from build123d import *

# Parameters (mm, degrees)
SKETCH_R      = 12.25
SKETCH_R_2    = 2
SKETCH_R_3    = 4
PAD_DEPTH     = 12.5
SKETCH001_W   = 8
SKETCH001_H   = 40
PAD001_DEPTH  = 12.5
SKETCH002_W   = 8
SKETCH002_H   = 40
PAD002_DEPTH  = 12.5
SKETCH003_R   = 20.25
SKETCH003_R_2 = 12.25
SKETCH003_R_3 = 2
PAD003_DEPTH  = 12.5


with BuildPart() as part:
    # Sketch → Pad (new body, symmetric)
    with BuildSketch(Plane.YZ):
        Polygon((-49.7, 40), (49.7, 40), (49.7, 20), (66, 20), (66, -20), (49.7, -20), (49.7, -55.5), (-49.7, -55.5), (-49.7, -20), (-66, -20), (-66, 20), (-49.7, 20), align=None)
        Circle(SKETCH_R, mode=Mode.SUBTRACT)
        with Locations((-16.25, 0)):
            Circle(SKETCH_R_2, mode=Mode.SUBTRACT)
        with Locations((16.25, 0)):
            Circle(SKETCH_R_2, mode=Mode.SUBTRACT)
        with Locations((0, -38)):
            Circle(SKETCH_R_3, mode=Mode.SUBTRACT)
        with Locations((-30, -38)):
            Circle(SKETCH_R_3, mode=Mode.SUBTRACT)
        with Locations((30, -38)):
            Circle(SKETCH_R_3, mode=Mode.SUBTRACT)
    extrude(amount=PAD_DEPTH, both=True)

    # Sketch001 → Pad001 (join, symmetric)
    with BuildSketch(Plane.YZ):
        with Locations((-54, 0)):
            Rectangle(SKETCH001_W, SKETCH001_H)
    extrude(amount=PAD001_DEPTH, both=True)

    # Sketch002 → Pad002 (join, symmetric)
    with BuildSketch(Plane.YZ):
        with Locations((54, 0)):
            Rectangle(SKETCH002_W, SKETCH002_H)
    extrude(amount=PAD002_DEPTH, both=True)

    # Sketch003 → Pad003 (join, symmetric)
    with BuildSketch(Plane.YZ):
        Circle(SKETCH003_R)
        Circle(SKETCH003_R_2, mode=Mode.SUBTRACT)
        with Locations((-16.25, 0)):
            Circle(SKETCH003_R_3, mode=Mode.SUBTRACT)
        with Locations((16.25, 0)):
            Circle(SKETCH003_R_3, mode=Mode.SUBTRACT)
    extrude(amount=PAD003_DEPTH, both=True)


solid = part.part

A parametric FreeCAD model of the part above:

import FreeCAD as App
import Part
import Sketcher

V = App.Vector
Q = App.Units.Quantity

doc = App.newDocument("Part")
body = doc.addObject("PartDesign::Body", "Body")

# Sketch on YZ plane
sketch1 = body.newObject("Sketcher::SketchObject", "Sketch")
sketch1.AttachmentSupport = (doc.getObject("YZ_Plane"), [""])
sketch1.MapMode = "FlatFace"
sketch1.addGeometry([
    Part.LineSegment(V(49.7, 40, 0), V(-49.7, 40, 0)),  # 0
    Part.LineSegment(V(-49.7, 40, 0), V(-49.7, 20, 0)),  # 1
    Part.LineSegment(V(-49.7, 20, 0), V(-66, 20, 0)),  # 2
    Part.LineSegment(V(-66, 20, 0), V(-66, -20, 0)),  # 3
    Part.LineSegment(V(-66, -20, 0), V(-49.7, -20, 0)),  # 4
    Part.LineSegment(V(-49.7, -20, 0), V(-49.7, -55.5, 0)),  # 5
    Part.LineSegment(V(-49.7, -55.5, 0), V(49.7, -55.5, 0)),  # 6
    Part.LineSegment(V(49.7, -55.5, 0), V(49.7, -20, 0)),  # 7
    Part.LineSegment(V(49.7, -20, 0), V(66, -20, 0)),  # 8
    Part.LineSegment(V(66, -20, 0), V(66, 20, 0)),  # 9
    Part.LineSegment(V(66, 20, 0), V(49.7, 20, 0)),  # 10
    Part.LineSegment(V(49.7, 20, 0), V(49.7, 40, 0)),  # 11
    Part.Circle(V(30, -38, 0), V(0, 0, 1), 4),  # 12
    Part.Circle(V(0, -38, 0), V(0, 0, 1), 4),  # 13
    Part.Circle(V(-30, -38, 0), V(0, 0, 1), 4),  # 14
    Part.Circle(V(16.2, 0, 0), V(0, 0, 1), 2),  # 15
    Part.Circle(V(0, 0, 0), V(0, 0, 1), 12.2),  # 16
    Part.Circle(V(-16.2, 0, 0), V(0, 0, 1), 2),  # 17
], False)
sketch1.addConstraint([
    Sketcher.Constraint("Coincident", 0, 2, 1, 1),
    Sketcher.Constraint("Coincident", 1, 2, 2, 1),
    Sketcher.Constraint("Coincident", 2, 2, 3, 1),
    Sketcher.Constraint("Coincident", 3, 2, 4, 1),
    Sketcher.Constraint("Coincident", 4, 2, 5, 1),
    Sketcher.Constraint("Coincident", 5, 2, 6, 1),
    Sketcher.Constraint("Coincident", 6, 2, 7, 1),
    Sketcher.Constraint("Coincident", 7, 2, 8, 1),
    Sketcher.Constraint("Coincident", 8, 2, 9, 1),
    Sketcher.Constraint("Coincident", 9, 2, 10, 1),
    Sketcher.Constraint("Coincident", 10, 2, 11, 1),
    Sketcher.Constraint("Coincident", 11, 2, 0, 1),
    Sketcher.Constraint("Horizontal", 0),
    Sketcher.Constraint("Vertical", 1),
    Sketcher.Constraint("Horizontal", 2),
    Sketcher.Constraint("Vertical", 3),
    Sketcher.Constraint("Horizontal", 4),
    Sketcher.Constraint("Vertical", 5),
    Sketcher.Constraint("Horizontal", 6),
    Sketcher.Constraint("Vertical", 7),
    Sketcher.Constraint("Horizontal", 8),
    Sketcher.Constraint("Vertical", 9),
    Sketcher.Constraint("Horizontal", 10),
    Sketcher.Constraint("Vertical", 11),
    Sketcher.Constraint("Coincident", 16, 3, -1, 1),
    Sketcher.Constraint("Equal", 12, 13),
    Sketcher.Constraint("Equal", 13, 14),
    Sketcher.Constraint("Equal", 15, 17),
    Sketcher.Constraint("Symmetric", 15, 3, 17, 3, -1, 1),
    Sketcher.Constraint("Symmetric", 1, 2, 7, 2, -1, 1),
    Sketcher.Constraint("Symmetric", 3, 2, 9, 2, -1, 1),
    Sketcher.Constraint("Symmetric", 12, 3, 14, 3, -2),
    Sketcher.Constraint("Symmetric", 4, 2, 7, 2, -2),
    Sketcher.Constraint("PointOnObject", 13, 3, -2),
    Sketcher.Constraint("PointOnObject", 15, 3, -1),
    Sketcher.Constraint("Horizontal", 12, 3, 13, 3),
    Sketcher.Constraint("Vertical", 7, 2, 10, 2),
    Sketcher.Constraint("Diameter", 12, Q("8 mm")),
    Sketcher.Constraint("Diameter", 15, Q("4 mm")),
    Sketcher.Constraint("Diameter", 16, Q("24.5 mm")),
    Sketcher.Constraint("DistanceY", 1, 2, 1, 1, Q("20 mm")),
    Sketcher.Constraint("DistanceY", 3, 2, 3, 1, Q("40 mm")),
    Sketcher.Constraint("DistanceX", 0, 2, 0, 1, Q("99.4 mm")),
    Sketcher.Constraint("DistanceX", 2, 2, 2, 1, Q("16.3 mm")),
    Sketcher.Constraint("DistanceY", 5, 2, 5, 1, Q("35.5 mm")),
    Sketcher.Constraint("DistanceX", -1, 1, 12, 3, Q("30 mm")),
    Sketcher.Constraint("DistanceY", 12, 3, -1, 1, Q("38 mm")),
    Sketcher.Constraint("DistanceX", 17, 3, 15, 3, Q("32.5 mm")),
])
pad1 = body.newObject("PartDesign::Pad", "Pad")
pad1.Profile = sketch1
pad1.Length = 25
pad1.Midplane = True

# Sketch on YZ plane
sketch2 = body.newObject("Sketcher::SketchObject", "Sketch001")
sketch2.AttachmentSupport = (doc.getObject("YZ_Plane"), [""])
sketch2.MapMode = "FlatFace"
sketch2.addGeometry([
    Part.LineSegment(V(-58, 20, 0), V(-58, -20, 0)),
    Part.LineSegment(V(-58, -20, 0), V(-50, -20, 0)),
    Part.LineSegment(V(-50, -20, 0), V(-50, 20, 0)),
    Part.LineSegment(V(-50, 20, 0), V(-58, 20, 0)),
], False)
sketch2.addConstraint([
    Sketcher.Constraint("Coincident", 0, 2, 1, 1),
    Sketcher.Constraint("Coincident", 1, 2, 2, 1),
    Sketcher.Constraint("Coincident", 2, 2, 3, 1),
    Sketcher.Constraint("Coincident", 3, 2, 0, 1),
    Sketcher.Constraint("Vertical", 0),
    Sketcher.Constraint("Horizontal", 1),
    Sketcher.Constraint("Vertical", 2),
    Sketcher.Constraint("Horizontal", 3),
    Sketcher.Constraint("DistanceX", 1, 1, 1, 2, Q("8 mm")),
    Sketcher.Constraint("DistanceY", 0, 2, 0, 1, Q("40 mm")),
    Sketcher.Constraint("DistanceX", 0, 2, -1, 1, Q("58 mm")),
    Sketcher.Constraint("DistanceY", 0, 2, -1, 1, Q("20 mm")),
])
pad2 = body.newObject("PartDesign::Pad", "Pad001")
pad2.Profile = sketch2
pad2.Length = 25
pad2.Midplane = True

# Sketch on YZ plane
sketch3 = body.newObject("Sketcher::SketchObject", "Sketch002")
sketch3.AttachmentSupport = (doc.getObject("YZ_Plane"), [""])
sketch3.MapMode = "FlatFace"
sketch3.addGeometry([
    Part.LineSegment(V(50, 20, 0), V(50, -20, 0)),
    Part.LineSegment(V(50, -20, 0), V(58, -20, 0)),
    Part.LineSegment(V(58, -20, 0), V(58, 20, 0)),
    Part.LineSegment(V(58, 20, 0), V(50, 20, 0)),
], False)
sketch3.addConstraint([
    Sketcher.Constraint("Coincident", 0, 2, 1, 1),
    Sketcher.Constraint("Coincident", 1, 2, 2, 1),
    Sketcher.Constraint("Coincident", 2, 2, 3, 1),
    Sketcher.Constraint("Coincident", 3, 2, 0, 1),
    Sketcher.Constraint("Vertical", 0),
    Sketcher.Constraint("Horizontal", 1),
    Sketcher.Constraint("Vertical", 2),
    Sketcher.Constraint("Horizontal", 3),
    Sketcher.Constraint("DistanceX", 1, 1, 1, 2, Q("8 mm")),
    Sketcher.Constraint("DistanceY", 0, 2, 0, 1, Q("40 mm")),
    Sketcher.Constraint("DistanceX", -1, 1, 0, 2, Q("50 mm")),
    Sketcher.Constraint("DistanceY", 0, 2, -1, 1, Q("20 mm")),
])
pad3 = body.newObject("PartDesign::Pad", "Pad002")
pad3.Profile = sketch3
pad3.Length = 25
pad3.Midplane = True

# Sketch on YZ plane
sketch4 = body.newObject("Sketcher::SketchObject", "Sketch003")
sketch4.AttachmentSupport = (doc.getObject("YZ_Plane"), [""])
sketch4.MapMode = "FlatFace"
sketch4.addGeometry([
    Part.Circle(V(0, 0, 0), V(0, 0, 1), 20.2),
    Part.Circle(V(-16.2, 0, 0), V(0, 0, 1), 2),
    Part.Circle(V(0, 0, 0), V(0, 0, 1), 12.2),
    Part.Circle(V(16.2, 0, 0), V(0, 0, 1), 2),
], False)
sketch4.addConstraint([
    Sketcher.Constraint("Coincident", 0, 3, -1, 1),
    Sketcher.Constraint("Coincident", 2, 3, -1, 1),
    Sketcher.Constraint("Equal", 1, 3),
    Sketcher.Constraint("Symmetric", 1, 3, 3, 3, -1, 1),
    Sketcher.Constraint("PointOnObject", 1, 3, -1),
    Sketcher.Constraint("Diameter", 1, Q("4 mm")),
    Sketcher.Constraint("Diameter", 0, Q("40.5 mm")),
    Sketcher.Constraint("Diameter", 2, Q("24.5 mm")),
    Sketcher.Constraint("DistanceX", 1, 3, 3, 3, Q("32.5 mm")),
])
pad4 = body.newObject("PartDesign::Pad", "Pad003")
pad4.Profile = sketch4
pad4.Length = 25
pad4.Midplane = True

doc.recompute()
